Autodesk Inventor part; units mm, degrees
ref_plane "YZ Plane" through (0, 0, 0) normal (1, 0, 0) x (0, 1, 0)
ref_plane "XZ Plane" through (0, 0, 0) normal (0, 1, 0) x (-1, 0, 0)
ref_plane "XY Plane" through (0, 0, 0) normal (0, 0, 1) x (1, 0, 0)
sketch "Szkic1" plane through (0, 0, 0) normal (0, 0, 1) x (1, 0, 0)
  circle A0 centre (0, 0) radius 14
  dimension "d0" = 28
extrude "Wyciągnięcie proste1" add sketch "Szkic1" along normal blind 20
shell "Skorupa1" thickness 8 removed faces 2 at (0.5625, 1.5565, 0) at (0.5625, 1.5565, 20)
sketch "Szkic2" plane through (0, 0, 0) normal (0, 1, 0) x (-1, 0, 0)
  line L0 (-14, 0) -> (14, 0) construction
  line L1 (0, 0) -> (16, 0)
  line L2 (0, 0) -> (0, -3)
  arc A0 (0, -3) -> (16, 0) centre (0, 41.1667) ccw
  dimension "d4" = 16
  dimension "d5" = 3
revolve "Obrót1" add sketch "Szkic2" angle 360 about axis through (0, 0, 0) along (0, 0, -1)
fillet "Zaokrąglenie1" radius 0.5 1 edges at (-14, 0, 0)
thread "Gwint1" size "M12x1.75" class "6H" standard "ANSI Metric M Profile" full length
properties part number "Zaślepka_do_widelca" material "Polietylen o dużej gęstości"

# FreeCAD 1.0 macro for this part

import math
import FreeCAD as App
import Part
import Sketcher

V = App.Vector
Q = App.Units.Quantity


def edges_at(feature, points):
    """Names of the edges that pass closest to the given points."""
    edges = feature.Shape.Edges
    near = lambda p: min(range(len(edges)), key=lambda i: edges[i].distToShape(Part.Vertex(*p))[0])
    return sorted({f"Edge{near(p) + 1}" for p in points})


def faces_at(feature, points):
    """Names of the faces that lie closest to the given points."""
    faces = feature.Shape.Faces
    near = lambda p: min(range(len(faces)), key=lambda i: faces[i].distToShape(Part.Vertex(*p))[0])
    return sorted({f"Face{near(p) + 1}" for p in points})

doc = App.newDocument("Part")
body = doc.addObject("PartDesign::Body", "Body")

# Sketch on XY plane
sketch1 = body.newObject("Sketcher::SketchObject", "Sketch")
sketch1.AttachmentSupport = (doc.getObject("XY_Plane"), [""])
sketch1.MapMode = "FlatFace"
sketch1.addGeometry(Part.Circle(V(0, 0, 0), V(0, 0, 1), 14), False)
sketch1.addConstraint(Sketcher.Constraint("Coincident", 0, 3, -1, 1))
sketch1.addConstraint(Sketcher.Constraint("Diameter", 0, Q("28 mm")))
pad1 = body.newObject("PartDesign::Pad", "Pad")
pad1.Profile = sketch1
pad1.Length = 20
doc.recompute()

thickness = body.newObject("PartDesign::Thickness", "Thickness")
thickness.Base = (pad1, faces_at(pad1, [(0.562, 1.556, 0), (0.562, 1.556, 20)]))
thickness.Value = 8
thickness.Reversed = True
thickness.Join = "Intersection"

# Sketch on XZ plane
sketch2 = body.newObject("Sketcher::SketchObject", "Sketch001")
sketch2.AttachmentSupport = (doc.getObject("XZ_Plane"), [""])
sketch2.MapMode = "FlatFace"
sketch2.addGeometry(Part.LineSegment(V(-16, 0, 0), V(0, 0, 0)), False)
sketch2.addGeometry(Part.LineSegment(V(0, 0, 0), V(0, -3, 0)), False)
sketch2.addGeometry(Part.ArcOfCircle(Part.Circle(V(0, 41.2, 0), V(0, 0, 1), 44.2), math.radians(-111), math.radians(-90)), False)
sketch2.addConstraint(Sketcher.Constraint("Coincident", 0, 2, 1, 1))
sketch2.addConstraint(Sketcher.Constraint("Coincident", 1, 2, 2, 2))
sketch2.addConstraint(Sketcher.Constraint("Coincident", 2, 1, 0, 1))
sketch2.addConstraint(Sketcher.Constraint("Horizontal", 0))
sketch2.addConstraint(Sketcher.Constraint("Vertical", 1))
sketch2.addConstraint(Sketcher.Constraint("Coincident", 0, 2, -1, 1))
sketch2.addConstraint(Sketcher.Constraint("PointOnObject", 2, 3, -2))
sketch2.addConstraint(Sketcher.Constraint("DistanceX", 0, 1, 0, 2, Q("16 mm")))
sketch2.addConstraint(Sketcher.Constraint("DistanceY", 1, 2, 1, 1, Q("3 mm")))
revolution = body.newObject("PartDesign::Revolution", "Revolution")
revolution.Profile = sketch2
revolution.ReferenceAxis = (sketch2, ["V_Axis"])
revolution.Angle = 360
doc.recompute()

fillet = body.newObject("PartDesign::Fillet", "Fillet")
fillet.Base = (revolution, edges_at(revolution, [(-14, 0, 0)]))
fillet.Radius = 0.5

doc.recompute()
